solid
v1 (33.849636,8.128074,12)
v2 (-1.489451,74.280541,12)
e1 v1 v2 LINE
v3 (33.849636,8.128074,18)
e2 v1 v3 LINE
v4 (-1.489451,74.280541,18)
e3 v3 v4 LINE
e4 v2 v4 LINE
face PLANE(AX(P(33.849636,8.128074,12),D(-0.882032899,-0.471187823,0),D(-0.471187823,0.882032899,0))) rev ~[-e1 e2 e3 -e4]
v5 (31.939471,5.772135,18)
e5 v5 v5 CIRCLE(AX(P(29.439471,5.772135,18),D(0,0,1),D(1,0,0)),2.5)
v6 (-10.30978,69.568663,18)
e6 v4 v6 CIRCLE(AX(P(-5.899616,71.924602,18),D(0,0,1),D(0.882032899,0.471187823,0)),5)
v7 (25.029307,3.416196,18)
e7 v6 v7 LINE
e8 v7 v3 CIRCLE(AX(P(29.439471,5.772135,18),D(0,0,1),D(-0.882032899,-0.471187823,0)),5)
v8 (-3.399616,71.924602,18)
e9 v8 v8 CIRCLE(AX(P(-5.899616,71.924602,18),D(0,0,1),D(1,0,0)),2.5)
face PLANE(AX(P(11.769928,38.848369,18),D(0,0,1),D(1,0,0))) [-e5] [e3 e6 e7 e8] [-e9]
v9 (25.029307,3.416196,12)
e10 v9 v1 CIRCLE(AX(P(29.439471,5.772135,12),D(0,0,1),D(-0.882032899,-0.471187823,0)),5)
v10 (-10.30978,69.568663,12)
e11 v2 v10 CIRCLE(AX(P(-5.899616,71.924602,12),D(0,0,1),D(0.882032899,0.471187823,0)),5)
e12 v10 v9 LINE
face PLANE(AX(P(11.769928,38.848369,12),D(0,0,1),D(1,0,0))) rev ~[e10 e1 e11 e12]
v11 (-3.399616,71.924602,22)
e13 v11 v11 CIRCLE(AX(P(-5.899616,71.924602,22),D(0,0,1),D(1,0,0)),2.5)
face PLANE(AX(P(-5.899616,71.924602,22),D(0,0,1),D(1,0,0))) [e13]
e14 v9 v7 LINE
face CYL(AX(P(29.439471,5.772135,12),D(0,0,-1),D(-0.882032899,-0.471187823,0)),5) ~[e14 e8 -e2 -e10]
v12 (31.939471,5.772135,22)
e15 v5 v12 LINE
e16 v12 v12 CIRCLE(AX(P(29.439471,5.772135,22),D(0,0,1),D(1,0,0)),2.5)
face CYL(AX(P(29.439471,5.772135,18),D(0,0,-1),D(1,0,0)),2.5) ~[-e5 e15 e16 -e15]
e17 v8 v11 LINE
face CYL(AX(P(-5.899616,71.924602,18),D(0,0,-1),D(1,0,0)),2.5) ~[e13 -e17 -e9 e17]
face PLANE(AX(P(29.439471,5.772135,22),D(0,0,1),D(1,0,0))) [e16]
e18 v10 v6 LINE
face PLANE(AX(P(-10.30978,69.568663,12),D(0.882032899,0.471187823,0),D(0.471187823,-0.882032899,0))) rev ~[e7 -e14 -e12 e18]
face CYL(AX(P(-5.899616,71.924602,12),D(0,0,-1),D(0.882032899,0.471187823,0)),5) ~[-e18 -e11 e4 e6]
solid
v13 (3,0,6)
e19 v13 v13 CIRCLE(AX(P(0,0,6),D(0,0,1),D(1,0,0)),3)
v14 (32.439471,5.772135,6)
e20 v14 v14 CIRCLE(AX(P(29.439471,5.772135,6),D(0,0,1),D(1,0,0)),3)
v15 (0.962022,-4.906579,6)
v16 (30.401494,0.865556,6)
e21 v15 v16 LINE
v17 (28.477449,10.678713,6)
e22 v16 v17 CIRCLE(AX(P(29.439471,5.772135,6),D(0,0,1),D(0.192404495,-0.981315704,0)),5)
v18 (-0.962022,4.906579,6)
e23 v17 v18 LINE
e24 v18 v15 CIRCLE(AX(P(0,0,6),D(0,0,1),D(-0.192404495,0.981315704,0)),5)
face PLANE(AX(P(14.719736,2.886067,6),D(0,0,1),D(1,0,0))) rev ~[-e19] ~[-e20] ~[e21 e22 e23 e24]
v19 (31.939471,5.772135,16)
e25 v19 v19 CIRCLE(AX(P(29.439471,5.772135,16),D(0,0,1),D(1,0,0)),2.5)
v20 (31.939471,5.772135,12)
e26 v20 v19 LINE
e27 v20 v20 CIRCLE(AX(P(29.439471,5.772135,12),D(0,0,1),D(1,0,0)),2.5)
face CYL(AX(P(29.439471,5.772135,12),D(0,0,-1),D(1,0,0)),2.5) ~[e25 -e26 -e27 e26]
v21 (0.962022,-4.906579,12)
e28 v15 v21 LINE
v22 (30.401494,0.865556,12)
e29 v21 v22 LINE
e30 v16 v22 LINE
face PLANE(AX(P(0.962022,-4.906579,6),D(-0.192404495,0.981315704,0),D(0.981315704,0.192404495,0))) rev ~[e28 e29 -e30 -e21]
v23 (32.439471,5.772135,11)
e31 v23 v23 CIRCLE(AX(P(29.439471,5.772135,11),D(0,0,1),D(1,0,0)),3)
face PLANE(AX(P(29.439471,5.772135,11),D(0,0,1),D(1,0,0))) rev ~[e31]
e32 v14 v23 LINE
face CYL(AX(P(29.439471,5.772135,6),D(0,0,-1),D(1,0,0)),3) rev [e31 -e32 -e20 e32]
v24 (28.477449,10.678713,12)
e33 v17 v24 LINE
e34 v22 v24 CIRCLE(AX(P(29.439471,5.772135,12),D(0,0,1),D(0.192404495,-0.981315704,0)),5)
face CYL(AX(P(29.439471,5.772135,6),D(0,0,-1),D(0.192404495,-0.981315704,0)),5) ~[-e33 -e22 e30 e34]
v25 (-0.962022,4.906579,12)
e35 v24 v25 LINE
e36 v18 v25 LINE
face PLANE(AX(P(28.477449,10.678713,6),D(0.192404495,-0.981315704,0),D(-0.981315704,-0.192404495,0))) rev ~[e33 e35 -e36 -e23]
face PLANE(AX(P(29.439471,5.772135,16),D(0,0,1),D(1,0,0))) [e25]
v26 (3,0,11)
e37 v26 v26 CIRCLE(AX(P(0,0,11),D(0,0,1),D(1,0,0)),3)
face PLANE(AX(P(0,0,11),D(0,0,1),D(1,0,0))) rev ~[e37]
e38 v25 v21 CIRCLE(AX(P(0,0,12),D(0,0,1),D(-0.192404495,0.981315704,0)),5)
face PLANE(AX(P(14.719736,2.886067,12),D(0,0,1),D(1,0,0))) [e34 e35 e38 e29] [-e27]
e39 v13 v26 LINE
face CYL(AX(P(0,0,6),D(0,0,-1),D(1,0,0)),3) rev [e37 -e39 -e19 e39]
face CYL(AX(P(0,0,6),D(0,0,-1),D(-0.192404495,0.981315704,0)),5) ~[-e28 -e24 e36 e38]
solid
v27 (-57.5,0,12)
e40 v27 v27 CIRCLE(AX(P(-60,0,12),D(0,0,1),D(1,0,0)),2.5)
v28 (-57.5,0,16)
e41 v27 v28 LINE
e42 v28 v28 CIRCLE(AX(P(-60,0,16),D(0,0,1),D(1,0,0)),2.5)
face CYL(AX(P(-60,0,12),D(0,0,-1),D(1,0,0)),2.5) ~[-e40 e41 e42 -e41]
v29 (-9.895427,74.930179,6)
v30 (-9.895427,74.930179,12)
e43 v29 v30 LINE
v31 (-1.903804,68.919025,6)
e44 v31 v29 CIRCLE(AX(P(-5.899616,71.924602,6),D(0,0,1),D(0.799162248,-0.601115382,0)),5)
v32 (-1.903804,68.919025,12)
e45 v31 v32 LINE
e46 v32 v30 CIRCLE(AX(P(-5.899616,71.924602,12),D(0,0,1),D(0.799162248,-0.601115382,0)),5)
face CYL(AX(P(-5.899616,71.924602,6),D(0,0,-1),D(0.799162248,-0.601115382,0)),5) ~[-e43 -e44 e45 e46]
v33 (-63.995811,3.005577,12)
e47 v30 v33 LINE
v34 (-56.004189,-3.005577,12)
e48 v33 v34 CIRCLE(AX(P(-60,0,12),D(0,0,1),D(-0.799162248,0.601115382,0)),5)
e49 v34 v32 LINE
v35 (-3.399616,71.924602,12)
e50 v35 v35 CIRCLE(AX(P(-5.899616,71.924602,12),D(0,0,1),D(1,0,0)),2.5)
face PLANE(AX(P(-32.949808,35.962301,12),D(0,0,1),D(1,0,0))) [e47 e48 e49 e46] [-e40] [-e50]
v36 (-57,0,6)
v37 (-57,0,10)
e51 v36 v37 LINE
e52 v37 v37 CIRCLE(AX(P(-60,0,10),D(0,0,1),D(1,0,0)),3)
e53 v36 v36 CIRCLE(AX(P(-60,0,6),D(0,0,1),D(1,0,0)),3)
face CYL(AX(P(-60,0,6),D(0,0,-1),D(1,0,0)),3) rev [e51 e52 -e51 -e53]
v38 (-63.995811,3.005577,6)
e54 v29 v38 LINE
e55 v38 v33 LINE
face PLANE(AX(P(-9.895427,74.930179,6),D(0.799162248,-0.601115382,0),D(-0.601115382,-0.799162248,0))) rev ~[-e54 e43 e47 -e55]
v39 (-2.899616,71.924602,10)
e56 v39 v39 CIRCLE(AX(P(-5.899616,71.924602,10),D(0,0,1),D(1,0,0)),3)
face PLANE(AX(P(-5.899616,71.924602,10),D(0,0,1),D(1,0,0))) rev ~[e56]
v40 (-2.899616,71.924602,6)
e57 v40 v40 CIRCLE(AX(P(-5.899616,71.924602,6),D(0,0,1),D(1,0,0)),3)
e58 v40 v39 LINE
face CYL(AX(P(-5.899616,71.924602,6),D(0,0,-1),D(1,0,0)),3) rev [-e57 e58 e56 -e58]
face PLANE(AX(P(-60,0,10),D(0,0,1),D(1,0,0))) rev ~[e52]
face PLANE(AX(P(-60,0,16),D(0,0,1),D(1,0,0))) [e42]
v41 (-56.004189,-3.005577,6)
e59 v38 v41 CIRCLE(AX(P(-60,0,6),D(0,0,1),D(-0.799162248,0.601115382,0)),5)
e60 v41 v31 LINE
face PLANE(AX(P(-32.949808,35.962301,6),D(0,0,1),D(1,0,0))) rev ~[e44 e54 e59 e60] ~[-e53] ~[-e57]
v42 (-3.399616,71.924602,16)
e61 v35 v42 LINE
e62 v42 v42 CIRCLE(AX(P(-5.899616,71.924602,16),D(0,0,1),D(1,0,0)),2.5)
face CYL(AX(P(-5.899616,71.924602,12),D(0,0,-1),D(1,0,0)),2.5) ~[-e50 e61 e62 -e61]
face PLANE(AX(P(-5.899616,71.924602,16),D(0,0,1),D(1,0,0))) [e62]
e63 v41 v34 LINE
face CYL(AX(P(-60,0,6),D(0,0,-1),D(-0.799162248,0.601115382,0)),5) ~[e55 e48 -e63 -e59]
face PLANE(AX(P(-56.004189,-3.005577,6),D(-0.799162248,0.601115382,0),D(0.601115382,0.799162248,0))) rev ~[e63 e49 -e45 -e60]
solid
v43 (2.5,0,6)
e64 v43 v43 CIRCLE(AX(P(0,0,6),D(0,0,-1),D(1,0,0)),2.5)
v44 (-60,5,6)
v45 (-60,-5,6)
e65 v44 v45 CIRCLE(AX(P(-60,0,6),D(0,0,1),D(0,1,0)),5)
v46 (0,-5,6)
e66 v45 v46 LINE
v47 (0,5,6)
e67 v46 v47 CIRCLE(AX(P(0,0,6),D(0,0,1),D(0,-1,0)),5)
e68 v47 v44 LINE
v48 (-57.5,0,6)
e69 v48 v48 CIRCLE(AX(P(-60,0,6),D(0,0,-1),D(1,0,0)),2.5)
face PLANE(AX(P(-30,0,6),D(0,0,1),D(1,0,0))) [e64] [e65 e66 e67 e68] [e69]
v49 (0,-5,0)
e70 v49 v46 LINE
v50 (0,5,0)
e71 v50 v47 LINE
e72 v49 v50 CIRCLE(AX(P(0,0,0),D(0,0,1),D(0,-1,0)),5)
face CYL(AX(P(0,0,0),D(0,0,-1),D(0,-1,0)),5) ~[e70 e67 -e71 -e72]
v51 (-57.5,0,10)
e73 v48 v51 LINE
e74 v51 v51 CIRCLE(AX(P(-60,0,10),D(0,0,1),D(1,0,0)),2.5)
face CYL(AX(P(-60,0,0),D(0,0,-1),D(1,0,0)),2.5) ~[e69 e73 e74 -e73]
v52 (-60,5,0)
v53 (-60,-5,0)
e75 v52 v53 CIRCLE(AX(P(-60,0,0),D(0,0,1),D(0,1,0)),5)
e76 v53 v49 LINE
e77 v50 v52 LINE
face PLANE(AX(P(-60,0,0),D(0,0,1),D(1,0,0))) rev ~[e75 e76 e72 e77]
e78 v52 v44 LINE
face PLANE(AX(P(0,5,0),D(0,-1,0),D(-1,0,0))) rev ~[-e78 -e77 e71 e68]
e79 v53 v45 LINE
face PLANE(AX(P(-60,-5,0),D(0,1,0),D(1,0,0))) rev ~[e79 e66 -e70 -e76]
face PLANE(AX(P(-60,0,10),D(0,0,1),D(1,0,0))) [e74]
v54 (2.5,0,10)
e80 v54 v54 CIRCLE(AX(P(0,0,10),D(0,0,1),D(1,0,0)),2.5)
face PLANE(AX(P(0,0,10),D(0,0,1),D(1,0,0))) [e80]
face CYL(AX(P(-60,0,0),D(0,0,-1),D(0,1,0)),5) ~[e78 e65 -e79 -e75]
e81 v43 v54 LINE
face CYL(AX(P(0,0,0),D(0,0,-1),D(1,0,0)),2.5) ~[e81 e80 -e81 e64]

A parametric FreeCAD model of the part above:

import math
import FreeCAD as App
import Part
import Sketcher

V = App.Vector

doc = App.newDocument("Part")
body = doc.addObject("PartDesign::Body", "Body")

# Sketch on XY plane
sketch1 = body.newObject("Sketcher::SketchObject", "Sketch")
sketch1.AttachmentSupport = (doc.getObject("XY_Plane"), [""])
sketch1.MapMode = "FlatFace"
sketch1.addGeometry([
    Part.ArcOfCircle(Part.Circle(V(0, 0, 0), V(0, 0, 1), 5), math.radians(-90), math.radians(90)),
    Part.LineSegment(V(0, 5, 0), V(-60, 5, 0)),
    Part.ArcOfCircle(Part.Circle(V(-60, 0, 0), V(0, 0, 1), 5), math.radians(90), math.radians(270)),
    Part.LineSegment(V(-60, -5, 0), V(0, -5, 0)),
], False)
sketch1.addConstraint([
    Sketcher.Constraint("Tangent", 0, 2, 1, 1),
    Sketcher.Constraint("Tangent", 1, 2, 2, 1),
    Sketcher.Constraint("Tangent", 2, 2, 3, 1),
    Sketcher.Constraint("Tangent", 3, 2, 0, 1),
    Sketcher.Constraint("Horizontal", 1),
    Sketcher.Constraint("Horizontal", 3),
    Sketcher.Constraint("Coincident", 0, 3, -1, 1),
    Sketcher.Constraint("Radius", 0, 5.0),
    Sketcher.Constraint("DistanceX", 1, 2, 1, 1, 60.0),
])
pad1 = body.newObject("PartDesign::Pad", "Pad")
pad1.Profile = sketch1
pad1.Length = 6

# Sketch on XY plane
sketch2 = body.newObject("Sketcher::SketchObject", "Sketch001")
sketch2.AttachmentSupport = (doc.getObject("XY_Plane"), [""])
sketch2.MapMode = "FlatFace"
sketch2.addGeometry([
    Part.Circle(V(-60, 0, 0), V(0, 0, 1), 2.5),
    Part.Circle(V(0, 0, 0), V(0, 0, 1), 2.5),
], False)
sketch2.addConstraint([
    Sketcher.Constraint("Coincident", 1, 3, -1, 1),
    Sketcher.Constraint("Equal", 0, 1),
    Sketcher.Constraint("PointOnObject", 0, 3, -1),
    Sketcher.Constraint("Diameter", 0, 5.0),
    Sketcher.Constraint("DistanceX", 0, 3, -1, 1, 60.0),
])
pad2 = body.newObject("PartDesign::Pad", "Pad001")
pad2.Profile = sketch2
pad2.Length = 10

# Sketch on XY plane
sketch3 = body.newObject("Sketcher::SketchObject", "Sketch002")
sketch3.AttachmentSupport = (doc.getObject("XY_Plane"), [""])
sketch3.MapMode = "FlatFace"
sketch3.addGeometry([
    Part.Circle(V(-60, 0, 0), V(0, 0, 1), 3),
    Part.Circle(V(0, 0, 0), V(0, 0, 1), 3),
], False)
sketch3.addConstraint([
    Sketcher.Constraint("Coincident", 1, 3, -1, 1),
    Sketcher.Constraint("Equal", 0, 1),
    Sketcher.Constraint("PointOnObject", 0, 3, -1),
    Sketcher.Constraint("Diameter", 0, 6.0),
    Sketcher.Constraint("DistanceX", 0, 3, -1, 1, 60.0),
])
pad3 = body.newObject("PartDesign::Pad", "Pad002")
pad3.Profile = sketch3
pad3.Length = 5
body2 = doc.addObject("PartDesign::Body", "Body001")

# Sketch on XY plane
sketch4 = body2.newObject("Sketcher::SketchObject", "Sketch003")
sketch4.AttachmentSupport = (doc.getObject("XY_Plane001"), [""])
sketch4.MapMode = "FlatFace"
sketch4.AttachmentOffset = App.Placement(V(0, 0, 6), App.Rotation())
sketch4.addGeometry([
    Part.ArcOfCircle(Part.Circle(V(0, 0, 0), V(0, 0, 1), 5), math.radians(101), math.radians(281)),
    Part.LineSegment(V(1, -5, 0), V(30, 1, 0)),
    Part.ArcOfCircle(Part.Circle(V(29, 6, 0), V(0, 0, 1), 5), math.radians(-79), math.radians(101)),
    Part.LineSegment(V(28, 11, 0), V(-1, 5, 0)),
], False)
sketch4.addConstraint([
    Sketcher.Constraint("Tangent", 0, 2, 1, 1),
    Sketcher.Constraint("Tangent", 1, 2, 2, 1),
    Sketcher.Constraint("Tangent", 2, 2, 3, 1),
    Sketcher.Constraint("Tangent", 3, 2, 0, 1),
    Sketcher.Constraint("Coincident", 0, 3, -1, 1),
    Sketcher.Constraint("Equal", 0, 2),
    Sketcher.Constraint("Radius", 0, 5.0),
    Sketcher.Constraint("Distance", 1, 30.0),
    Sketcher.Constraint("DistanceX", -1, 1, 2, 3, 29.439471),
])
pad4 = body2.newObject("PartDesign::Pad", "Pad003")
pad4.Profile = sketch4
pad4.Length = 6

# Sketch on XY plane
sketch5 = body2.newObject("Sketcher::SketchObject", "Sketch004")
sketch5.AttachmentSupport = (doc.getObject("XY_Plane001"), [""])
sketch5.MapMode = "FlatFace"
sketch5.AttachmentOffset = App.Placement(V(0, 0, 12), App.Rotation())
sketch5.addGeometry(Part.Circle(V(29.4, 5.8, 0), V(0, 0, 1), 2.5), False)
sketch5.addConstraint([
    Sketcher.Constraint("Diameter", 0, 5.0),
    Sketcher.Constraint("DistanceX", -1, 1, 0, 3, 29.439471),
    Sketcher.Constraint("DistanceY", -1, 1, 0, 3, 5.772135),
])
pad5 = body2.newObject("PartDesign::Pad", "Pad004")
pad5.Profile = sketch5
pad5.Length = 4

# Sketch on XY plane
sketch6 = body2.newObject("Sketcher::SketchObject", "Sketch005")
sketch6.AttachmentSupport = (doc.getObject("XY_Plane001"), [""])
sketch6.MapMode = "FlatFace"
sketch6.AttachmentOffset = App.Placement(V(0, 0, 6), App.Rotation())
sketch6.addGeometry([
    Part.Circle(V(0, 0, 0), V(0, 0, 1), 3),
    Part.Circle(V(29.4, 5.8, 0), V(0, 0, 1), 3),
], False)
sketch6.addConstraint([
    Sketcher.Constraint("Coincident", 0, 3, -1, 1),
    Sketcher.Constraint("Equal", 0, 1),
    Sketcher.Constraint("Diameter", 0, 6.0),
    Sketcher.Constraint("DistanceX", -1, 1, 1, 3, 29.439471),
    Sketcher.Constraint("DistanceY", -1, 1, 1, 3, 5.772135),
])
pocket1 = body2.newObject("PartDesign::Pocket", "Pocket")
pocket1.Profile = sketch6
pocket1.Length = 5
pocket1.Reversed = True
body3 = doc.addObject("PartDesign::Body", "Body002")

# Sketch on XY plane
sketch7 = body3.newObject("Sketcher::SketchObject", "Sketch006")
sketch7.AttachmentSupport = (doc.getObject("XY_Plane002"), [""])
sketch7.MapMode = "FlatFace"
sketch7.AttachmentOffset = App.Placement(V(0, 0, 6), App.Rotation())
sketch7.addGeometry([
    Part.ArcOfCircle(Part.Circle(V(-60, 0, 0), V(0, 0, 1), 5), math.radians(143), math.radians(323)),
    Part.LineSegment(V(-56, -3, 0), V(-2, 69, 0)),
    Part.ArcOfCircle(Part.Circle(V(-6, 72, 0), V(0, 0, 1), 5), math.radians(-37), math.radians(143)),
    Part.LineSegment(V(-10, 75, 0), V(-64, 3, 0)),
], False)
sketch7.addConstraint([
    Sketcher.Constraint("Tangent", 0, 2, 1, 1),
    Sketcher.Constraint("Tangent", 1, 2, 2, 1),
    Sketcher.Constraint("Tangent", 2, 2, 3, 1),
    Sketcher.Constraint("Tangent", 3, 2, 0, 1),
    Sketcher.Constraint("Equal", 0, 2),
    Sketcher.Constraint("PointOnObject", 0, 3, -1),
    Sketcher.Constraint("Radius", 0, 5.0),
    Sketcher.Constraint("Distance", 1, 90.0),
    Sketcher.Constraint("DistanceX", 0, 3, -1, 1, 60.0),
    Sketcher.Constraint("DistanceX", 0, 2, -1, 1, 56.004189),
])
pad6 = body3.newObject("PartDesign::Pad", "Pad005")
pad6.Profile = sketch7
pad6.Length = 6

# Sketch on XY plane
sketch8 = body3.newObject("Sketcher::SketchObject", "Sketch007")
sketch8.AttachmentSupport = (doc.getObject("XY_Plane002"), [""])
sketch8.MapMode = "FlatFace"
sketch8.AttachmentOffset = App.Placement(V(0, 0, 12), App.Rotation())
sketch8.addGeometry([
    Part.Circle(V(-5.9, 71.9, 0), V(0, 0, 1), 2.5),
    Part.Circle(V(-60, 0, 0), V(0, 0, 1), 2.5),
], False)
sketch8.addConstraint([
    Sketcher.Constraint("Equal", 0, 1),
    Sketcher.Constraint("PointOnObject", 1, 3, -1),
    Sketcher.Constraint("Diameter", 0, 5.0),
    Sketcher.Constraint("DistanceX", 1, 3, -1, 1, 60.0),
    Sketcher.Constraint("DistanceX", 0, 3, -1, 1, 5.899616),
    Sketcher.Constraint("DistanceY", -1, 1, 0, 3, 71.924602),
])
pad7 = body3.newObject("PartDesign::Pad", "Pad006")
pad7.Profile = sketch8
pad7.Length = 4

# Sketch on XY plane
sketch9 = body3.newObject("Sketcher::SketchObject", "Sketch008")
sketch9.AttachmentSupport = (doc.getObject("XY_Plane002"), [""])
sketch9.MapMode = "FlatFace"
sketch9.AttachmentOffset = App.Placement(V(0, 0, 6), App.Rotation())
sketch9.addGeometry([
    Part.Circle(V(-60, 0, 0), V(0, 0, 1), 3),
    Part.Circle(V(-5.9, 71.9, 0), V(0, 0, 1), 3),
], False)
sketch9.addConstraint([
    Sketcher.Constraint("Equal", 0, 1),
    Sketcher.Constraint("PointOnObject", 0, 3, -1),
    Sketcher.Constraint("Diameter", 0, 6.0),
    Sketcher.Constraint("DistanceX", 0, 3, -1, 1, 60.0),
    Sketcher.Constraint("DistanceX", 1, 3, -1, 1, 5.899616),
    Sketcher.Constraint("DistanceY", -1, 1, 1, 3, 71.924602),
])
pocket2 = body3.newObject("PartDesign::Pocket", "Pocket001")
pocket2.Profile = sketch9
pocket2.Length = 4
pocket2.Reversed = True
body4 = doc.addObject("PartDesign::Body", "Body003")

# Sketch on XY plane
sketch10 = body4.newObject("Sketcher::SketchObject", "Sketch009")
sketch10.AttachmentSupport = (doc.getObject("XY_Plane003"), [""])
sketch10.MapMode = "FlatFace"
sketch10.AttachmentOffset = App.Placement(V(0, 0, 12), App.Rotation())
sketch10.addGeometry([
    Part.ArcOfCircle(Part.Circle(V(-6, 72, 0), V(0, 0, 1), 5), math.radians(28), math.radians(208)),
    Part.LineSegment(V(-10, 70, 0), V(25, 3, 0)),
    Part.ArcOfCircle(Part.Circle(V(29, 6, 0), V(0, 0, 1), 5), math.radians(-152), math.radians(28)),
    Part.LineSegment(V(34, 8, 0), V(-1, 74, 0)),
], False)
sketch10.addConstraint([
    Sketcher.Constraint("Tangent", 0, 2, 1, 1),
    Sketcher.Constraint("Tangent", 1, 2, 2, 1),
    Sketcher.Constraint("Tangent", 2, 2, 3, 1),
    Sketcher.Constraint("Tangent", 3, 2, 0, 1),
    Sketcher.Constraint("Equal", 0, 2),
    Sketcher.Constraint("Radius", 0, 5.0),
    Sketcher.Constraint("Distance", 1, 75.0),
    Sketcher.Constraint("DistanceX", -1, 1, 2, 3, 29.439471),
    Sketcher.Constraint("DistanceX", 0, 2, -1, 1, 10.30978),
    Sketcher.Constraint("DistanceY", -1, 1, 3, 2, 74.280541),
])
pad8 = body4.newObject("PartDesign::Pad", "Pad007")
pad8.Profile = sketch10
pad8.Length = 6

# Sketch on XY plane
sketch11 = body4.newObject("Sketcher::SketchObject", "Sketch010")
sketch11.AttachmentSupport = (doc.getObject("XY_Plane003"), [""])
sketch11.MapMode = "FlatFace"
sketch11.AttachmentOffset = App.Placement(V(0, 0, 18), App.Rotation())
sketch11.addGeometry([
    Part.Circle(V(29.4, 5.8, 0), V(0, 0, 1), 2.5),
    Part.Circle(V(-5.9, 71.9, 0), V(0, 0, 1), 2.5),
], False)
sketch11.addConstraint([
    Sketcher.Constraint("Equal", 0, 1),
    Sketcher.Constraint("Diameter", 0, 5.0),
    Sketcher.Constraint("DistanceX", -1, 1, 0, 3, 29.439471),
    Sketcher.Constraint("DistanceY", -1, 1, 0, 3, 5.772135),
    Sketcher.Constraint("DistanceX", 1, 3, -1, 1, 5.899616),
    Sketcher.Constraint("DistanceY", -1, 1, 1, 3, 71.924602),
])
pad9 = body4.newObject("PartDesign::Pad", "Pad008")
pad9.Profile = sketch11
pad9.Length = 4

doc.recompute()
